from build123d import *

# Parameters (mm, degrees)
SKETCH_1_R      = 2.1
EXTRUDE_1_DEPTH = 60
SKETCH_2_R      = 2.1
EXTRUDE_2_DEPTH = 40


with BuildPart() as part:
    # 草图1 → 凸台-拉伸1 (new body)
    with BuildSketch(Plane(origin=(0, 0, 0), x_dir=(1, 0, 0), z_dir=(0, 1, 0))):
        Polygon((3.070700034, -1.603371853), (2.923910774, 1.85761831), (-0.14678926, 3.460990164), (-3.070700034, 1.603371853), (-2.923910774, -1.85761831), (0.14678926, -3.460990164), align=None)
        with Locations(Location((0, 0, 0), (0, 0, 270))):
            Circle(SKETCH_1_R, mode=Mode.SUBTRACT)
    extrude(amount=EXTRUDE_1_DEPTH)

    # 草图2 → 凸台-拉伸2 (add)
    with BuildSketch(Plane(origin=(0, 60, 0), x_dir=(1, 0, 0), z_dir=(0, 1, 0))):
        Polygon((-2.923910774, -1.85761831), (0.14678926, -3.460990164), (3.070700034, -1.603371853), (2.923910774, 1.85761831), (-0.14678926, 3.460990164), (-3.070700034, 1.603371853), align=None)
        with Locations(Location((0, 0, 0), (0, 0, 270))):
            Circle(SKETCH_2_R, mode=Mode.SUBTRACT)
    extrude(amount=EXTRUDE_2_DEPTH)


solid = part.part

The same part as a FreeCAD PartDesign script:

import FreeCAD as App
import Part
import Sketcher

V = App.Vector


def add_polygon(sketch, points):
    """Adds a closed chain of lines whose ends are joined by coincident constraints."""
    first, n = sketch.GeometryCount, len(points)
    for a, b in zip(points, points[1:] + points[:1]):
        sketch.addGeometry(Part.LineSegment(App.Vector(*a, 0), App.Vector(*b, 0)), False)
    for i in range(n):
        sketch.addConstraint(Sketcher.Constraint("Coincident", first + i, 2, first + (i + 1) % n, 1))

doc = App.newDocument("Part")
body = doc.addObject("PartDesign::Body", "Body")

sketch1 = body.newObject("Sketcher::SketchObject", "Sketch")
sketch1.AttachmentSupport = (doc.getObject("XZ_Plane"), [""])
sketch1.MapMode = "FlatFace"
add_polygon(sketch1, [(3.1, 1.6), (2.9, -1.9), (-0.1, -3.5), (-3.1, -1.6), (-2.9, 1.9), (0.1, 3.5)])
sketch1.addGeometry(Part.Circle(V(0, 0, 0), V(0, 0, 1), 2.1), False)
sketch1.addConstraint(Sketcher.Constraint("Coincident", 6, 3, -1, 1))
sketch1.addConstraint(Sketcher.Constraint("Symmetric", 0, 2, 3, 2, -1, 1))
sketch1.addConstraint(Sketcher.Constraint("Symmetric", 1, 2, 4, 2, -1, 1))
sketch1.addConstraint(Sketcher.Constraint("Symmetric", 2, 2, 5, 2, -1, 1))
sketch1.addConstraint(Sketcher.Constraint("Equal", 0, 1))
sketch1.addConstraint(Sketcher.Constraint("Equal", 1, 2))
sketch1.addConstraint(Sketcher.Constraint("Diameter", 6, 4.2))
sketch1.addConstraint(Sketcher.Constraint("Distance", 0, 3.464102))
sketch1.addConstraint(Sketcher.Constraint("DistanceX", 2, 2, -1, 1, 3.0707))
sketch1.addConstraint(Sketcher.Constraint("DistanceX", 1, 2, 0, 2, 3.0707))
sketch1.addConstraint(Sketcher.Constraint("DistanceX", -1, 1, 0, 2, 2.923911))
pad1 = body.newObject("PartDesign::Pad", "Pad")
pad1.Profile = sketch1
pad1.Length = 60
pad1.Reversed = True

sketch2 = body.newObject("Sketcher::SketchObject", "Sketch001")
sketch2.AttachmentSupport = (doc.getObject("XZ_Plane"), [""])
sketch2.MapMode = "FlatFace"
sketch2.AttachmentOffset = App.Placement(V(0, 0, -60), App.Rotation())
add_polygon(sketch2, [(-2.9, 1.9), (0.1, 3.5), (3.1, 1.6), (2.9, -1.9), (-0.1, -3.5), (-3.1, -1.6)])
sketch2.addGeometry(Part.Circle(V(0, 0, 0), V(0, 0, 1), 2.1), False)
sketch2.addConstraint(Sketcher.Constraint("Coincident", 6, 3, -1, 1))
sketch2.addConstraint(Sketcher.Constraint("Symmetric", 0, 2, 3, 2, -1, 1))
sketch2.addConstraint(Sketcher.Constraint("Symmetric", 1, 2, 4, 2, -1, 1))
sketch2.addConstraint(Sketcher.Constraint("Symmetric", 2, 2, 5, 2, -1, 1))
sketch2.addConstraint(Sketcher.Constraint("Equal", 0, 1))
sketch2.addConstraint(Sketcher.Constraint("Equal", 1, 2))
sketch2.addConstraint(Sketcher.Constraint("Diameter", 6, 4.2))
sketch2.addConstraint(Sketcher.Constraint("Distance", 0, 3.464102))
sketch2.addConstraint(Sketcher.Constraint("DistanceX", -1, 1, 1, 2, 3.0707))
sketch2.addConstraint(Sketcher.Constraint("DistanceX", 3, 2, 2, 2, 3.0707))
sketch2.addConstraint(Sketcher.Constraint("DistanceX", -1, 1, 0, 2, 0.146789))
pad2 = body.newObject("PartDesign::Pad", "Pad001")
pad2.Profile = sketch2
pad2.Length = 40
pad2.Reversed = True

doc.recompute()
